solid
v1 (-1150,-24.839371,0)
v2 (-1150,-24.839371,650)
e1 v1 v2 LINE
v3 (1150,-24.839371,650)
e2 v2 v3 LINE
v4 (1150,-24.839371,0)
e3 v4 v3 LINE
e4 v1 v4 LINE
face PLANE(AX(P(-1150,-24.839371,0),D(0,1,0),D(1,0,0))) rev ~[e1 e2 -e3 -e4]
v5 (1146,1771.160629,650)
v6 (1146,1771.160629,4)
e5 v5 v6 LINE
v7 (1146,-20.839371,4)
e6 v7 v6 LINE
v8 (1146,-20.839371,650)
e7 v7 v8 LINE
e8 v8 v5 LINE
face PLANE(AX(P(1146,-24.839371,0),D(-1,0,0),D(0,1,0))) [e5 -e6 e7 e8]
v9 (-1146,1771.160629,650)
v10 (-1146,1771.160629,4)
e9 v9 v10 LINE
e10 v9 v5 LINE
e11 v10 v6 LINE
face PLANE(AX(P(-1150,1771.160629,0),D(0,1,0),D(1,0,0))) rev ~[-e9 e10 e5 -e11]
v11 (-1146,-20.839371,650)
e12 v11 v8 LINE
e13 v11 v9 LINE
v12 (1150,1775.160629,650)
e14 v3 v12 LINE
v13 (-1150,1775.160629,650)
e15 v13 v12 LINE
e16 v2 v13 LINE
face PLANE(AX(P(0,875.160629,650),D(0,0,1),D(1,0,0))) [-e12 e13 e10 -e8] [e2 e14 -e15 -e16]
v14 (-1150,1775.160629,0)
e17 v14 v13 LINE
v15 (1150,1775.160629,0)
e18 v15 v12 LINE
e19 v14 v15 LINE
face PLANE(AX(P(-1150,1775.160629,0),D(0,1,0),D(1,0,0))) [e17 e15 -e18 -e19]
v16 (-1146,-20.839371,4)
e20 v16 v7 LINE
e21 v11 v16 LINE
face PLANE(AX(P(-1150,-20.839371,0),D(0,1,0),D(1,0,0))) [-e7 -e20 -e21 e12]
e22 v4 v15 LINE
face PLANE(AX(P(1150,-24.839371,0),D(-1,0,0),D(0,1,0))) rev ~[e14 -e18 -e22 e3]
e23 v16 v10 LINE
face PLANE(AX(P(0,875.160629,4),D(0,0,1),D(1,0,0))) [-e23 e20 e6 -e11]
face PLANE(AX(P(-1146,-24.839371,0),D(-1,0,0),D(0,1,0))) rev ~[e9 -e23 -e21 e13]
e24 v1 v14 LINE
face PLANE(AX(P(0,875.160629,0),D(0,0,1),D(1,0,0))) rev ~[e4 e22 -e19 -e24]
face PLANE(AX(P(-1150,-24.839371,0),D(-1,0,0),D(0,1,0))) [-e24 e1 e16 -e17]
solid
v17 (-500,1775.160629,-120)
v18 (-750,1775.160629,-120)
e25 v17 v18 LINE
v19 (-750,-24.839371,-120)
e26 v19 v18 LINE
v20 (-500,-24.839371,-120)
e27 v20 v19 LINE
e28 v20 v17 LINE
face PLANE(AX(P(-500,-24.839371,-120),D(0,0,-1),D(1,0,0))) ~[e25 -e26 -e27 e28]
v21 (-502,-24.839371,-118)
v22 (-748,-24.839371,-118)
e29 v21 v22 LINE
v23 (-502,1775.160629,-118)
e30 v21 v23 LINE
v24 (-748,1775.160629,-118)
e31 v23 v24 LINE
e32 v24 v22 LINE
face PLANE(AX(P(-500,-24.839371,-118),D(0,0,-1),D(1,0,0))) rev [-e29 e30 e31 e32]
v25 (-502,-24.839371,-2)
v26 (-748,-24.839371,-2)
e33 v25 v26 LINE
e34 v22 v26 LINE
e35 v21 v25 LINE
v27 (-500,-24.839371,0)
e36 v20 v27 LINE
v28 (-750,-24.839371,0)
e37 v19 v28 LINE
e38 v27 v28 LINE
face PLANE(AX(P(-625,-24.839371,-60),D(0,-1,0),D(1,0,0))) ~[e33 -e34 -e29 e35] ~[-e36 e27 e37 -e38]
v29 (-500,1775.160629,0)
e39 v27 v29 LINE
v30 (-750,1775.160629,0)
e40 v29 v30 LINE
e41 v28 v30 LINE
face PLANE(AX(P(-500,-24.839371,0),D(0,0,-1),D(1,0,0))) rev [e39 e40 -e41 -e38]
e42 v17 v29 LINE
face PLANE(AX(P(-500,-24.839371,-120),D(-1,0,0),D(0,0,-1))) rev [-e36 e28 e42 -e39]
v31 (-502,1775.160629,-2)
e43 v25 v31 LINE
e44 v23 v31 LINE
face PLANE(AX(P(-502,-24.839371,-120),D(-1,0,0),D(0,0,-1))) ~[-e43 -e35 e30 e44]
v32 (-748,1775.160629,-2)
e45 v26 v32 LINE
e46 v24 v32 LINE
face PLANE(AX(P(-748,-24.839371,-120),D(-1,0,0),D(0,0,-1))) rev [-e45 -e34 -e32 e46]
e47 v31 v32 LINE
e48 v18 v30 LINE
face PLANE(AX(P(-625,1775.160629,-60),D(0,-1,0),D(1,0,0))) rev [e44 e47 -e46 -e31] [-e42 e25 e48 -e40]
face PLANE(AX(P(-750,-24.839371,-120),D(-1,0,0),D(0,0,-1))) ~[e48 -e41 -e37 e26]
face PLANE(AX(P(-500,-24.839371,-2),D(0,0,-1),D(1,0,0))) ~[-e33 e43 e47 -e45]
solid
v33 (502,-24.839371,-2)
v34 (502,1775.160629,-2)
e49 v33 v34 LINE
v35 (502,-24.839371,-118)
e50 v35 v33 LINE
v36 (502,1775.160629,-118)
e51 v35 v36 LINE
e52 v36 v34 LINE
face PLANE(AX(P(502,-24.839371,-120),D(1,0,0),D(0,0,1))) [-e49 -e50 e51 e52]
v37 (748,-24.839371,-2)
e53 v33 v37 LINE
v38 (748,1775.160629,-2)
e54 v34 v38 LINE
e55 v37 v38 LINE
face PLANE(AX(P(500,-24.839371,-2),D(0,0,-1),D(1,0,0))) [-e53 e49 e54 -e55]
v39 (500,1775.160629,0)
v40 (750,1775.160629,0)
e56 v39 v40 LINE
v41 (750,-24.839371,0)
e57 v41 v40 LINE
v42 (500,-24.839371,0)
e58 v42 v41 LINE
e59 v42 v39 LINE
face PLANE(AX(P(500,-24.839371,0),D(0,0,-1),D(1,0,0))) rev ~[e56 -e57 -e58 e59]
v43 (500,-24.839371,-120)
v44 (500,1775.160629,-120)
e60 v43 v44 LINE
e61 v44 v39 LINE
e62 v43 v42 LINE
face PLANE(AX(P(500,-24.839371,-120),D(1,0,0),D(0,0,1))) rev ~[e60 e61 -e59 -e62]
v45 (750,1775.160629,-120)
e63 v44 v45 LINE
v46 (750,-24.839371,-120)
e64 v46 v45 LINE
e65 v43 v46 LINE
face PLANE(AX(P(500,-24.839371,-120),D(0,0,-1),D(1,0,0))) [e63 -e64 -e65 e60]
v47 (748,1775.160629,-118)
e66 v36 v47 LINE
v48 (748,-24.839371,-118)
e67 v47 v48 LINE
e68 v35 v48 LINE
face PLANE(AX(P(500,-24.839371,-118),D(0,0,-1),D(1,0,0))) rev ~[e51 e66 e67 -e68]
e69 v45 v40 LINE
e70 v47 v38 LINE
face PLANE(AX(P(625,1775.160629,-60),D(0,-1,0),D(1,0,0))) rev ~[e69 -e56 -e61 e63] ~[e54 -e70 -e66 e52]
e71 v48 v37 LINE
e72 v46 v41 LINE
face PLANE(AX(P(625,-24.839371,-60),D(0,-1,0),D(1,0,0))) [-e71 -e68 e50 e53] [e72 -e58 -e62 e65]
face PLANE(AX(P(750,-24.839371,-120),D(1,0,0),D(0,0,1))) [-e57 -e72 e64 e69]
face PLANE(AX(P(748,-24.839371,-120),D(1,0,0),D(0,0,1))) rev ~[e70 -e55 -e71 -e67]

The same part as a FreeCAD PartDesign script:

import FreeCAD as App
import Part
import Sketcher

V = App.Vector
Q = App.Units.Quantity


def faces_at(feature, points):
    """Names of the faces that lie closest to the given points."""
    faces = feature.Shape.Faces
    near = lambda p: min(range(len(faces)), key=lambda i: faces[i].distToShape(Part.Vertex(*p))[0])
    return sorted({f"Face{near(p) + 1}" for p in points})


def add_polygon(sketch, points):
    """Adds a closed chain of lines whose ends are joined by coincident constraints."""
    first, n = sketch.GeometryCount, len(points)
    for a, b in zip(points, points[1:] + points[:1]):
        sketch.addGeometry(Part.LineSegment(App.Vector(*a, 0), App.Vector(*b, 0)), False)
    for i in range(n):
        sketch.addConstraint(Sketcher.Constraint("Coincident", first + i, 2, first + (i + 1) % n, 1))

doc = App.newDocument("Part")
params = doc.addObject("Spreadsheet::Sheet", "Params")
for row, (alias, value) in enumerate([
    ("sketch1_width", "2300 mm"),
    ("sketch1_height", "1800 mm"),
    ("pad1_length", "650 mm"),
    ("thickness_wall", "4 mm"),
    ("sketch2_width", "250 mm"),
    ("sketch2_height", "120 mm"),
    ("pad2_length", "1800 mm"),
    ("thickness2_wall", "2 mm"),
], start=1):
    params.set(f"A{row}", alias)
    params.set(f"B{row}", "=" + value)
    params.setAlias(f"B{row}", alias)

body = doc.addObject("PartDesign::Body", "Body")

# Sketch on XY plane
sketch1 = body.newObject("Sketcher::SketchObject", "Sketch")
sketch1.AttachmentSupport = (doc.getObject("XY_Plane"), [""])
sketch1.MapMode = "FlatFace"
add_polygon(sketch1, [(-1150, 1775), (-1150, -25), (1150, -25), (1150, 1775)])  # lines 0-3
sketch1.addConstraint([
    Sketcher.Constraint("Vertical", 0),
    Sketcher.Constraint("Horizontal", 1),
    Sketcher.Constraint("Vertical", 2),
    Sketcher.Constraint("Horizontal", 3),
    Sketcher.Constraint("DistanceX", 1, 1, 1, 2, Q("2300 mm")),
    Sketcher.Constraint("DistanceY", 0, 2, 0, 1, Q("1800 mm")),
    Sketcher.Constraint("DistanceX", 0, 2, -1, 1, Q("1150 mm")),
    Sketcher.Constraint("DistanceY", 0, 2, -1, 1, Q("24.839371 mm")),
])
sketch1.setExpression("Constraints[8]", "Params.sketch1_width")
sketch1.setExpression("Constraints[9]", "Params.sketch1_height")
pad1 = body.newObject("PartDesign::Pad", "Pad")
pad1.Profile = sketch1
pad1.setExpression("Length", "Params.pad1_length")
doc.recompute()

thickness = body.newObject("PartDesign::Thickness", "Thickness")
thickness.Base = (pad1, faces_at(pad1, [(0, 875.161, 650)]))
thickness.setExpression("Value", "Params.thickness_wall")
thickness.Reversed = True
thickness.Join = "Arc"
body2 = doc.addObject("PartDesign::Body", "Body001")

# Sketch on XZ plane
sketch2 = body2.newObject("Sketcher::SketchObject", "Sketch001")
sketch2.AttachmentSupport = (doc.getObject("XZ_Plane001"), [""])
sketch2.MapMode = "FlatFace"
sketch2.AttachmentOffset = App.Placement(V(0, 0, 24.839371), App.Rotation())
add_polygon(sketch2, [(500, 0), (500, -120), (750, -120), (750, 0)])  # lines 0-3
sketch2.addConstraint([
    Sketcher.Constraint("Vertical", 0),
    Sketcher.Constraint("Horizontal", 1),
    Sketcher.Constraint("Vertical", 2),
    Sketcher.Constraint("Horizontal", 3),
    Sketcher.Constraint("PointOnObject", 2, 2, -1),
    Sketcher.Constraint("DistanceX", 1, 1, 1, 2, Q("250 mm")),
    Sketcher.Constraint("DistanceY", 0, 2, 0, 1, Q("120 mm")),
    Sketcher.Constraint("DistanceX", -1, 1, 0, 2, Q("500 mm")),
])
sketch2.setExpression("Constraints[9]", "Params.sketch2_width")
sketch2.setExpression("Constraints[10]", "Params.sketch2_height")
pad2 = body2.newObject("PartDesign::Pad", "Pad001")
pad2.Profile = sketch2
pad2.setExpression("Length", "Params.pad2_length")
pad2.Reversed = True
doc.recompute()

thickness2 = body2.newObject("PartDesign::Thickness", "Thickness001")
thickness2.Base = (pad2, faces_at(pad2, [(625, -24.839, -60), (625, 1775.161, -60)]))
thickness2.setExpression("Value", "Params.thickness2_wall")
thickness2.Reversed = True
thickness2.Join = "Arc"
body3 = doc.addObject("PartDesign::Body", "Body002")
doc.recompute()

mirroring = doc.addObject("Part::Mirroring", "Mirroring")
mirroring.Source = body2
mirroring.Base = V(0, 0, 0)
mirroring.Normal = V(1, 0, 0)
body3.BaseFeature = mirroring
doc.recompute()
mirroring.Visibility = False

doc.recompute()
